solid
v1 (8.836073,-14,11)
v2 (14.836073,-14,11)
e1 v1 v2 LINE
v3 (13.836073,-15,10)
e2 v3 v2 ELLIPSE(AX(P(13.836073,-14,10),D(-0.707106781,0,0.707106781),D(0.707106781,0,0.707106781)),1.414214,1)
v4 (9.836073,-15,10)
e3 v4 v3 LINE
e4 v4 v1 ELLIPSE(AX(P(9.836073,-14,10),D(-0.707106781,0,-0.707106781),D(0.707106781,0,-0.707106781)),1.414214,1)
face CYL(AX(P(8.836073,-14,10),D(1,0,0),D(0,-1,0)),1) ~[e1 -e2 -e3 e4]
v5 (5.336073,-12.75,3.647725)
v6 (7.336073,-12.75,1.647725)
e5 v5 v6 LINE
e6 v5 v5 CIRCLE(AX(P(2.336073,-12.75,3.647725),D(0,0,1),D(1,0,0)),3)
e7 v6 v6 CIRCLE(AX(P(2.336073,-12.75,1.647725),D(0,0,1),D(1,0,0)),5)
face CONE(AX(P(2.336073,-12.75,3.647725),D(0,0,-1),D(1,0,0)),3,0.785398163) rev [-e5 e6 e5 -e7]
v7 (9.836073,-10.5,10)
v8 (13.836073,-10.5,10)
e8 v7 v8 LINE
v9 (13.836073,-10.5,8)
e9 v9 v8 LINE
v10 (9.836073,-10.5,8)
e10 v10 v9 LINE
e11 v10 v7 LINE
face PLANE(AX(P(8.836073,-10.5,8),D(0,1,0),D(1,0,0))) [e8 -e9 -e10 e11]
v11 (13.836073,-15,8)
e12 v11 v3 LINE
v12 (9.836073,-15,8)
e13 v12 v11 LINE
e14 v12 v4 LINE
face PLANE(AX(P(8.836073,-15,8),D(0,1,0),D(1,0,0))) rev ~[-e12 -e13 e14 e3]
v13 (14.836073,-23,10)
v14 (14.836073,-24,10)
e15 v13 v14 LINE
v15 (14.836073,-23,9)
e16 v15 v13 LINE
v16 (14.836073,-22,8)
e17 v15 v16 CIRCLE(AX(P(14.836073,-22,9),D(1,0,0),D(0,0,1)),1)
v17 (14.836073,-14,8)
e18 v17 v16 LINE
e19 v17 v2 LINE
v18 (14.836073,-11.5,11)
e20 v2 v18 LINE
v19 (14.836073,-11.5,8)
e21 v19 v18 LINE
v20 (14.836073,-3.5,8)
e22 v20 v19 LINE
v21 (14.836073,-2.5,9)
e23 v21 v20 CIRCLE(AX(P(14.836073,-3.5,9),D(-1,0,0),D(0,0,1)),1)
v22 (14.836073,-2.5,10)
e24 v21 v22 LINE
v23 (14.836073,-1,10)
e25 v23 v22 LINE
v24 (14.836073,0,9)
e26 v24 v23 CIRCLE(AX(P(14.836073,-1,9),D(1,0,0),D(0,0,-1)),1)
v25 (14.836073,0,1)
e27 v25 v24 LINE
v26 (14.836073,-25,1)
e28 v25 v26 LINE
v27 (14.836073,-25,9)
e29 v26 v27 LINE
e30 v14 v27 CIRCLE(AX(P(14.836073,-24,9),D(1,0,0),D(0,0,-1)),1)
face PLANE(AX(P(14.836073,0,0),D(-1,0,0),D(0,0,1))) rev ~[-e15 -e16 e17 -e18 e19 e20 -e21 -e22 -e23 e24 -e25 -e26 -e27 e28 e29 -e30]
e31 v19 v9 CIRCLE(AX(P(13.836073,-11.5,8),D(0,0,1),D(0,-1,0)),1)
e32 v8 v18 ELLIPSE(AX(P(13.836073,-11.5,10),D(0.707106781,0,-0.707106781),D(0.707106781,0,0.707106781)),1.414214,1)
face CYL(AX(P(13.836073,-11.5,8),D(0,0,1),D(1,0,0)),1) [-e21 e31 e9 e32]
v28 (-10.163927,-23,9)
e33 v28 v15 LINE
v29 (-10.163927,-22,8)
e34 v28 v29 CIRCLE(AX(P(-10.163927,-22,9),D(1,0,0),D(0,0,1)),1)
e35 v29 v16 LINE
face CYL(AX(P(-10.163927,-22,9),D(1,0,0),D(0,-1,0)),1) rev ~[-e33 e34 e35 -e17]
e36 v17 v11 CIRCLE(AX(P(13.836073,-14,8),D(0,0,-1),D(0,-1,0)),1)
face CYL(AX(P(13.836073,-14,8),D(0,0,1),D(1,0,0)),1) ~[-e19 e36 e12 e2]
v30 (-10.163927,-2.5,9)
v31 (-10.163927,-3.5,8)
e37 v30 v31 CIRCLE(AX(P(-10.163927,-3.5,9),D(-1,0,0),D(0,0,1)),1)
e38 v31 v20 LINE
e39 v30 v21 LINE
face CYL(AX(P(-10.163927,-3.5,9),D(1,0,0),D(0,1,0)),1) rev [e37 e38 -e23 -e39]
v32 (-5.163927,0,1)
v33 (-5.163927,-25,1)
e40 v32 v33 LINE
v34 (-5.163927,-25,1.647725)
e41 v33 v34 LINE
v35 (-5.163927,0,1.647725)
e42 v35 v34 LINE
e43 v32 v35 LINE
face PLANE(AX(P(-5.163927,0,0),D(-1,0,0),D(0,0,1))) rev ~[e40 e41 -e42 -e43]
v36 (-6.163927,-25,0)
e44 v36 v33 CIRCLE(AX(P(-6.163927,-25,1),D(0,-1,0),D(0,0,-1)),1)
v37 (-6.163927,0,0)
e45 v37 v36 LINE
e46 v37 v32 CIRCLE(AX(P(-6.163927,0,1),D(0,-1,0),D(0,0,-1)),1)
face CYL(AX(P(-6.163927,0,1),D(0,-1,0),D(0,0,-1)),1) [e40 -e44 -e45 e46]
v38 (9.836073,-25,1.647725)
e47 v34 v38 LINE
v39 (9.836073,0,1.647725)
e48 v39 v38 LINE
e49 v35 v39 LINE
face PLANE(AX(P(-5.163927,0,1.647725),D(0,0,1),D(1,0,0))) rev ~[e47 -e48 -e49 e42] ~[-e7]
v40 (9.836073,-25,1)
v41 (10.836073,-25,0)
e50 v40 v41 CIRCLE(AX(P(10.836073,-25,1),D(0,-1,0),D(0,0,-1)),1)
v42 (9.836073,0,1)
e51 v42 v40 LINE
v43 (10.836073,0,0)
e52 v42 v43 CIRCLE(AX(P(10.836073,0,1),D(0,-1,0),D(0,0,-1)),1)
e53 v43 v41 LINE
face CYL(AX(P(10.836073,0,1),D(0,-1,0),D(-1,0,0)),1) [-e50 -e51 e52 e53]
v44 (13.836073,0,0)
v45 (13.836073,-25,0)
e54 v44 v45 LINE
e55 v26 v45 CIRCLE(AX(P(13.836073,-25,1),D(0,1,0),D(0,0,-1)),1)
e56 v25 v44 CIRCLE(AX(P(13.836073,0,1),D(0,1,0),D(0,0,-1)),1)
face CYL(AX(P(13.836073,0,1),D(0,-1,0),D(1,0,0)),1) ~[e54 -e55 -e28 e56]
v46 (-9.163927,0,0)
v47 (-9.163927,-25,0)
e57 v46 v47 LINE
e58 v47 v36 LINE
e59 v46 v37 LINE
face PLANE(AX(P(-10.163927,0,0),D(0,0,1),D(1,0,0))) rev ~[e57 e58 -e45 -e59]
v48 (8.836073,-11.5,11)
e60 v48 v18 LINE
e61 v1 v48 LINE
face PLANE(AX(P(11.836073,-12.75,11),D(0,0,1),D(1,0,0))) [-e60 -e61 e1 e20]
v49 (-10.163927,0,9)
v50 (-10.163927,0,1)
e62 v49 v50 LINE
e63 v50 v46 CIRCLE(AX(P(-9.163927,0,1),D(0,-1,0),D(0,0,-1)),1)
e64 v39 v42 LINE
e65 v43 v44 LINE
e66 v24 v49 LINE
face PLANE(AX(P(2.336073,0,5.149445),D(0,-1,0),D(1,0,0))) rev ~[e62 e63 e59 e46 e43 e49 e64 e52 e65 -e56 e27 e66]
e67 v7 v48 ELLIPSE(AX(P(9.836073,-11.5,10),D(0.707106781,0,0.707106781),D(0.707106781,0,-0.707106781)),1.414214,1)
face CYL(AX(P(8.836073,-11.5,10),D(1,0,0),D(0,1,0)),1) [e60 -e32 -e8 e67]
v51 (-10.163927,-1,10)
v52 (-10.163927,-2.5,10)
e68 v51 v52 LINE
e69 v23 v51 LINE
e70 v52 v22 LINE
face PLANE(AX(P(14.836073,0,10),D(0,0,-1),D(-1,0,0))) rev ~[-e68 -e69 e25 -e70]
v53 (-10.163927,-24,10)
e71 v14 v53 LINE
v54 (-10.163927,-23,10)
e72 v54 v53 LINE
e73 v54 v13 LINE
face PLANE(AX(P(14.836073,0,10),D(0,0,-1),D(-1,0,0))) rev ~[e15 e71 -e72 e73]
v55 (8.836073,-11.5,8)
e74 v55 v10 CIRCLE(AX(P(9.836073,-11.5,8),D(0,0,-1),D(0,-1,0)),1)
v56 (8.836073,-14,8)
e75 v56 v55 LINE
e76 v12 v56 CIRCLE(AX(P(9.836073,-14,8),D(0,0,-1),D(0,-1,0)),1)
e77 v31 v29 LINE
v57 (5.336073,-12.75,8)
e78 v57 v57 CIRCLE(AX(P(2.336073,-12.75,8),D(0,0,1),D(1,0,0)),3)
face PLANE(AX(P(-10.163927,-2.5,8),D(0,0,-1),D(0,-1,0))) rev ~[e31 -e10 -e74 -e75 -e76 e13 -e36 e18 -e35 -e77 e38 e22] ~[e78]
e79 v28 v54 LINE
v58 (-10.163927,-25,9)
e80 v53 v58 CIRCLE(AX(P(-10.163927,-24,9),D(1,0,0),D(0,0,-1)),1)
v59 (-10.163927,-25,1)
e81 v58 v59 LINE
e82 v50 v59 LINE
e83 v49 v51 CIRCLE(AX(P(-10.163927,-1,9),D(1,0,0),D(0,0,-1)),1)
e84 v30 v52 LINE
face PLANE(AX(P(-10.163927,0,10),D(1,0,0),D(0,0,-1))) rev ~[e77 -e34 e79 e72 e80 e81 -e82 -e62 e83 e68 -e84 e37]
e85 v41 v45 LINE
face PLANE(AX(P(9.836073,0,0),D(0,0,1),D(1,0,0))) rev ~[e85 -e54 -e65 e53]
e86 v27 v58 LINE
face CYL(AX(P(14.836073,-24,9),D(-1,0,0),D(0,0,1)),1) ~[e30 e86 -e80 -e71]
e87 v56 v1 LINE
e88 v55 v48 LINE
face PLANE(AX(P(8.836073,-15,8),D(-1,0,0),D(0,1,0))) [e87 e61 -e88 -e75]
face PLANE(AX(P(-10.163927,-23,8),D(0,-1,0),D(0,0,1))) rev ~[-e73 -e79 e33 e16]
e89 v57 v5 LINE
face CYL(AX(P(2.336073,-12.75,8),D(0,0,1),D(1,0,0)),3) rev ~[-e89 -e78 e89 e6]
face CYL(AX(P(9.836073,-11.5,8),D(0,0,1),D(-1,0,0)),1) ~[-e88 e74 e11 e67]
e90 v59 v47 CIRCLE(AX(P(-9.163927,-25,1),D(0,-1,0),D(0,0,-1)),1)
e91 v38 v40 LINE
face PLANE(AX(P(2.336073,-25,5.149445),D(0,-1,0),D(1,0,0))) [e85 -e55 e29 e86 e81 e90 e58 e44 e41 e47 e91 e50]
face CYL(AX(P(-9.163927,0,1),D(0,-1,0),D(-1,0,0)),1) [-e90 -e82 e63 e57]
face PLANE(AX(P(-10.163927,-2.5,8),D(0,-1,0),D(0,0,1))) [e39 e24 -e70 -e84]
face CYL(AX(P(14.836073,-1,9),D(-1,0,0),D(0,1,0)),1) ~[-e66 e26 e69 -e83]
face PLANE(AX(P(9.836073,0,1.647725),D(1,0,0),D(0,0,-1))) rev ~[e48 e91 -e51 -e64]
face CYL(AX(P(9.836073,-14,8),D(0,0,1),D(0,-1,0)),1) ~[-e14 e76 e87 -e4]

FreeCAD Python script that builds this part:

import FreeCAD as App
import Part
import Sketcher
Q = App.Units.Quantity


def edges_at(feature, points):
    """Names of the edges that pass closest to the given points."""
    edges = feature.Shape.Edges
    near = lambda p: min(range(len(edges)), key=lambda i: edges[i].distToShape(Part.Vertex(*p))[0])
    return sorted({f"Edge{near(p) + 1}" for p in points})


def add_polygon(sketch, points):
    """Adds a closed chain of lines whose ends are joined by coincident constraints."""
    first, n = sketch.GeometryCount, len(points)
    for a, b in zip(points, points[1:] + points[:1]):
        sketch.addGeometry(Part.LineSegment(App.Vector(*a, 0), App.Vector(*b, 0)), False)
    for i in range(n):
        sketch.addConstraint(Sketcher.Constraint("Coincident", first + i, 2, first + (i + 1) % n, 1))

doc = App.newDocument("Part")
body = doc.addObject("PartDesign::Body", "Body")

sketch1 = body.newObject("Sketcher::SketchObject", "Sketch")
sketch1.AttachmentSupport = (doc.getObject("XZ_Plane"), [""])
sketch1.MapMode = "FlatFace"
add_polygon(sketch1, [(14.8, 10), (-10.2, 10), (-10.2, 0), (-5.2, 0), (-5.2, 1.6), (9.8, 1.6), (9.8, 0), (14.8, 0)])
sketch1.addConstraint([
    Sketcher.Constraint("Horizontal", 0),
    Sketcher.Constraint("Vertical", 1),
    Sketcher.Constraint("Horizontal", 2),
    Sketcher.Constraint("Vertical", 3),
    Sketcher.Constraint("Horizontal", 4),
    Sketcher.Constraint("Vertical", 5),
    Sketcher.Constraint("Horizontal", 6),
    Sketcher.Constraint("Vertical", 7),
    Sketcher.Constraint("PointOnObject", 1, 2, -1),
    Sketcher.Constraint("PointOnObject", 5, 2, -1),
    Sketcher.Constraint("Equal", 2, 6),
    Sketcher.Constraint("DistanceX", 0, 2, 0, 1, Q("25 mm")),
    Sketcher.Constraint("DistanceX", 2, 1, 2, 2, Q("5 mm")),
    Sketcher.Constraint("DistanceY", 1, 2, 1, 1, Q("10 mm")),
    Sketcher.Constraint("DistanceY", 3, 1, 3, 2, Q("1.647725 mm")),
    Sketcher.Constraint("DistanceX", 0, 2, -1, 1, Q("10.163927 mm")),
])
pad1 = body.newObject("PartDesign::Pad", "Pad")
pad1.Profile = sketch1
pad1.Length = 25

sketch2 = body.newObject("Sketcher::SketchObject", "Sketch001")
sketch2.AttachmentSupport = (doc.getObject("YZ_Plane"), [""])
sketch2.MapMode = "FlatFace"
sketch2.AttachmentOffset = App.Placement(App.Vector(0, 0, -10.163927), App.Rotation())
add_polygon(sketch2, [(-2.5, 10), (-2.5, 8), (-23, 8), (-23, 10)])
sketch2.addConstraint([
    Sketcher.Constraint("Vertical", 0),
    Sketcher.Constraint("Horizontal", 1),
    Sketcher.Constraint("Vertical", 2),
    Sketcher.Constraint("Horizontal", 3),
    Sketcher.Constraint("DistanceY", 0, 2, 0, 1, Q("2 mm")),
    Sketcher.Constraint("DistanceX", 1, 2, 1, 1, Q("20.5 mm")),
    Sketcher.Constraint("DistanceY", -1, 1, 0, 2, Q("8 mm")),
    Sketcher.Constraint("DistanceX", 1, 2, -1, 1, Q("23 mm")),
])
pocket1 = body.newObject("PartDesign::Pocket", "Pocket")
pocket1.Profile = sketch2
pocket1.Length = 25
pocket1.Reversed = True

sketch3 = body.newObject("Sketcher::SketchObject", "Sketch002")
sketch3.AttachmentSupport = (doc.getObject("XY_Plane"), [""])
sketch3.MapMode = "FlatFace"
sketch3.AttachmentOffset = App.Placement(App.Vector(0, 0, 8), App.Rotation())
sketch3.addGeometry(Part.Circle(App.Vector(2.3, -12.8, 0), App.Vector(0, 0, 1), 3), False)
sketch3.addConstraint([
    Sketcher.Constraint("Diameter", 0, Q("6 mm")),
    Sketcher.Constraint("DistanceY", 0, 3, -1, 1, Q("12.75 mm")),
    Sketcher.Constraint("DistanceX", -1, 1, 0, 3, Q("2.336073 mm")),
])
pocket2 = body.newObject("PartDesign::Pocket", "Pocket001")
pocket2.Profile = sketch3
pocket2.Length = 25

sketch4 = body.newObject("Sketcher::SketchObject", "Sketch003")
sketch4.AttachmentSupport = (doc.getObject("XY_Plane"), [""])
sketch4.MapMode = "FlatFace"
sketch4.AttachmentOffset = App.Placement(App.Vector(0, 0, 8), App.Rotation())
add_polygon(sketch4, [(8.8, -10.5), (8.8, -15), (14.8, -15), (14.8, -10.5)])
sketch4.addConstraint([
    Sketcher.Constraint("Vertical", 0),
    Sketcher.Constraint("Horizontal", 1),
    Sketcher.Constraint("Vertical", 2),
    Sketcher.Constraint("Horizontal", 3),
    Sketcher.Constraint("DistanceX", 1, 1, 1, 2, Q("6 mm")),
    Sketcher.Constraint("DistanceY", 0, 2, 0, 1, Q("4.5 mm")),
    Sketcher.Constraint("DistanceY", 0, 2, -1, 1, Q("15 mm")),
    Sketcher.Constraint("DistanceX", -1, 1, 0, 2, Q("8.836073 mm")),
])
pad2 = body.newObject("PartDesign::Pad", "Pad001")
pad2.Profile = sketch4
pad2.Length = 3
doc.recompute()

fillet = body.newObject("PartDesign::Fillet", "Fillet")
fillet.Base = (pad2, edges_at(pad2, [
    (11.836, -10.5, 11),
    (11.836, -15, 11),
    (8.836, -10.5, 9.5),
    (8.836, -15, 9.5),
    (14.836, -10.5, 9.5),
    (14.836, -15, 9.5),
]))
fillet.Radius = 1
doc.recompute()

fillet2 = body.newObject("PartDesign::Fillet", "Fillet001")
fillet2.Base = (fillet, edges_at(fillet, [
    (2.336, -23, 8),
    (2.336, -2.5, 8),
    (2.336, -25, 10),
    (2.336, 0, 10),
    (-10.164, -12.5, 0),
    (-5.164, -12.5, 0),
    (9.836, -12.5, 0),
    (14.836, -12.5, 0),
]))
fillet2.Radius = 1
doc.recompute()

chamfer = body.newObject("PartDesign::Chamfer", "Chamfer")
chamfer.Base = (fillet2, edges_at(fillet2, [(-0.664, -12.75, 1.648)]))
chamfer.Size = 2

doc.recompute()
